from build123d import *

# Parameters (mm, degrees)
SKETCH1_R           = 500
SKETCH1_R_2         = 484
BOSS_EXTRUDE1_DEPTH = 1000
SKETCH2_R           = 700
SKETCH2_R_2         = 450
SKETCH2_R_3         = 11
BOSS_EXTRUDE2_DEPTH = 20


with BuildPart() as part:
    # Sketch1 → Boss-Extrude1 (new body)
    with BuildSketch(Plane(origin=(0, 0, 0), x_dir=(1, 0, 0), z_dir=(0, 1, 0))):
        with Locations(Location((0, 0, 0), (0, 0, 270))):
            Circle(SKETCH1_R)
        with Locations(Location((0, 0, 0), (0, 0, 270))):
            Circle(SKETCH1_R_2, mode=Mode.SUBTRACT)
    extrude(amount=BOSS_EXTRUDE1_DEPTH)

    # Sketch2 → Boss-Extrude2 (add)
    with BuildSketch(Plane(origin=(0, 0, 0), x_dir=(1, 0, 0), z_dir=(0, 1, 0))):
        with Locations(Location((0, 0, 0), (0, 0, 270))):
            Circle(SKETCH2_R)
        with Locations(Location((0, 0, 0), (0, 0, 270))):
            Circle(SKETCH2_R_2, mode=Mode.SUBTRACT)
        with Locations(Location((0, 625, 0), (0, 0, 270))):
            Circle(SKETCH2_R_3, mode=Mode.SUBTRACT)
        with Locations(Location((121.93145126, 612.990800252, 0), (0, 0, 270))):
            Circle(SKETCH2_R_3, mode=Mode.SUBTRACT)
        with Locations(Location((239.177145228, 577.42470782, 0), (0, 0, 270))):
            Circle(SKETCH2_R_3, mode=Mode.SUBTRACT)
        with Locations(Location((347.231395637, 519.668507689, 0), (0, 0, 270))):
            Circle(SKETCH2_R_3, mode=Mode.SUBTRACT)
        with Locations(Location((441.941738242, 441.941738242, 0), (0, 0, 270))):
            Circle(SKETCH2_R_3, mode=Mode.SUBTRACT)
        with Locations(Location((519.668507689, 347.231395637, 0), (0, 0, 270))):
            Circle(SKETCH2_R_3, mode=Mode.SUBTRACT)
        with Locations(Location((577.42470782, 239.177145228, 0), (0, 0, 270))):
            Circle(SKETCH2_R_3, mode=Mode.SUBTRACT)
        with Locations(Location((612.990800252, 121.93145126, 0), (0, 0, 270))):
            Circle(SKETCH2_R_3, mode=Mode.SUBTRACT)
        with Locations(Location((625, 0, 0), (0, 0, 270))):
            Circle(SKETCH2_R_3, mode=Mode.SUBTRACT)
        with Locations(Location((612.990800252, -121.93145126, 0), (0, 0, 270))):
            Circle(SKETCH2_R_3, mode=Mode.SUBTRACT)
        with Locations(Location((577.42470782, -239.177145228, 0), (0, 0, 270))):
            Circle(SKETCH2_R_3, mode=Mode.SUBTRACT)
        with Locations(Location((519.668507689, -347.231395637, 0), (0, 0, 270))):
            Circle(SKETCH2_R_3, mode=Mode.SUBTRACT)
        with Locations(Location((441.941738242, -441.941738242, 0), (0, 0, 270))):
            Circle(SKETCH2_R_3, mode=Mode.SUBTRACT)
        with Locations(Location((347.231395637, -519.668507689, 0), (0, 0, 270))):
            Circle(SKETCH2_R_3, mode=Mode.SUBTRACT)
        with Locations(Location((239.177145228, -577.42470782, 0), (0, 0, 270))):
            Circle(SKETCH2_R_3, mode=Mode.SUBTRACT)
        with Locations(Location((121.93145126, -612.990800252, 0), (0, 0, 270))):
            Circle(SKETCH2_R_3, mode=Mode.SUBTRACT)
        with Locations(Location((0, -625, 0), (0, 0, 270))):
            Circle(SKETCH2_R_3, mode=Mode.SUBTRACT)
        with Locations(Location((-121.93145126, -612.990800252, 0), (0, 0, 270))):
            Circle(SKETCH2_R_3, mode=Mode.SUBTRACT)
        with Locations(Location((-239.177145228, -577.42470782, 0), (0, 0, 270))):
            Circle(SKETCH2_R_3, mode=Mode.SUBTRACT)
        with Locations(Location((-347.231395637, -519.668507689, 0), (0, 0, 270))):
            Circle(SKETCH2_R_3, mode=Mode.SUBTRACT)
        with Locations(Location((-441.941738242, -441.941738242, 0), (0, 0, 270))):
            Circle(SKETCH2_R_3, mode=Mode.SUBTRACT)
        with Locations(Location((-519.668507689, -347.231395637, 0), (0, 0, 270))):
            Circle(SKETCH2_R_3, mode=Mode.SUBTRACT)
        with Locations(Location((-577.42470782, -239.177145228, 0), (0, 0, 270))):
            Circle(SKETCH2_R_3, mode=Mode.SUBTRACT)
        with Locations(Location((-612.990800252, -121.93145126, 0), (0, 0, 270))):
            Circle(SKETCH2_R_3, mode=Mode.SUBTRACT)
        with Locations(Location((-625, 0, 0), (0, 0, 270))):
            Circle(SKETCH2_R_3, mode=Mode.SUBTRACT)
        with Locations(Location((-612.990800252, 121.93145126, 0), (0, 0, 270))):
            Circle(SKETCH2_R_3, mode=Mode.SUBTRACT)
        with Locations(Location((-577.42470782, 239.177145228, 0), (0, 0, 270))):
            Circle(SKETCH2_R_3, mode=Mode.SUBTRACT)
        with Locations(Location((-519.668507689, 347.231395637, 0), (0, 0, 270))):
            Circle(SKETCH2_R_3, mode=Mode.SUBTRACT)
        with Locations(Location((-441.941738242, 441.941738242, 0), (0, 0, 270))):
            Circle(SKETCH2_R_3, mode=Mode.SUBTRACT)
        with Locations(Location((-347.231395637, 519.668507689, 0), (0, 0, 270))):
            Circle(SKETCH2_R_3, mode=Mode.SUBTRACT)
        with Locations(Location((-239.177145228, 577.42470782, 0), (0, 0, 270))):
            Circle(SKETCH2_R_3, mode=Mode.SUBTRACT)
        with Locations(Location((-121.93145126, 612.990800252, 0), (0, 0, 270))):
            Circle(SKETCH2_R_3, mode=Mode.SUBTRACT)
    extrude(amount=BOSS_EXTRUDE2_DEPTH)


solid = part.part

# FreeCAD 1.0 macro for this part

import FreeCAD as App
import Part
import Sketcher

doc = App.newDocument("Part")
body = doc.addObject("PartDesign::Body", "Body")

# Sketch on XZ plane
sketch1 = body.newObject("Sketcher::SketchObject", "Sketch")
sketch1.AttachmentSupport = (doc.getObject("XZ_Plane"), [""])
sketch1.MapMode = "FlatFace"
sketch1.addGeometry(Part.Circle(App.Vector(0, 0, 0), App.Vector(0, 0, 1), 500), False)
sketch1.addGeometry(Part.Circle(App.Vector(0, 0, 0), App.Vector(0, 0, 1), 484), False)
sketch1.addConstraint(Sketcher.Constraint("Coincident", 0, 3, -1, 1))
sketch1.addConstraint(Sketcher.Constraint("Coincident", 1, 3, -1, 1))
sketch1.addConstraint(Sketcher.Constraint("Diameter", 0, 1000.0))
sketch1.addConstraint(Sketcher.Constraint("Diameter", 1, 968.0))
pad1 = body.newObject("PartDesign::Pad", "Pad")
pad1.Profile = sketch1
pad1.Length = 1000
pad1.Reversed = True

# Sketch on XZ plane
sketch2 = body.newObject("Sketcher::SketchObject", "Sketch001")
sketch2.AttachmentSupport = (doc.getObject("XZ_Plane"), [""])
sketch2.MapMode = "FlatFace"
sketch2.addGeometry(Part.Circle(App.Vector(0, 0, 0), App.Vector(0, 0, 1), 700), False)
sketch2.addGeometry(Part.Circle(App.Vector(-519.668508, -347.231396, 0), App.Vector(0, 0, 1), 11), False)
sketch2.addGeometry(Part.Circle(App.Vector(-347.231396, -519.668508, 0), App.Vector(0, 0, 1), 11), False)
sketch2.addGeometry(Part.Circle(App.Vector(-441.941738, -441.941738, 0), App.Vector(0, 0, 1), 11), False)
sketch2.addGeometry(Part.Circle(App.Vector(-577.424708, -239.177145, 0), App.Vector(0, 0, 1), 11), False)
sketch2.addGeometry(Part.Circle(App.Vector(-612.9908, -121.931451, 0), App.Vector(0, 0, 1), 11), False)
sketch2.addGeometry(Part.Circle(App.Vector(-239.177145, -577.424708, 0), App.Vector(0, 0, 1), 11), False)
sketch2.addGeometry(Part.Circle(App.Vector(-121.931451, -612.9908, 0), App.Vector(0, 0, 1), 11), False)
sketch2.addGeometry(Part.Circle(App.Vector(0, -625, 0), App.Vector(0, 0, 1), 11), False)
sketch2.addGeometry(Part.Circle(App.Vector(-625, 0, 0), App.Vector(0, 0, 1), 11), False)
sketch2.addGeometry(Part.Circle(App.Vector(-612.9908, 121.931451, 0), App.Vector(0, 0, 1), 11), False)
sketch2.addGeometry(Part.Circle(App.Vector(-577.424708, 239.177145, 0), App.Vector(0, 0, 1), 11), False)
sketch2.addGeometry(Part.Circle(App.Vector(-519.668508, 347.231396, 0), App.Vector(0, 0, 1), 11), False)
sketch2.addGeometry(Part.Circle(App.Vector(-441.941738, 441.941738, 0), App.Vector(0, 0, 1), 11), False)
sketch2.addGeometry(Part.Circle(App.Vector(-347.231396, 519.668508, 0), App.Vector(0, 0, 1), 11), False)
sketch2.addGeometry(Part.Circle(App.Vector(-239.177145, 577.424708, 0), App.Vector(0, 0, 1), 11), False)
sketch2.addGeometry(Part.Circle(App.Vector(-121.931451, 612.9908, 0), App.Vector(0, 0, 1), 11), False)
sketch2.addGeometry(Part.Circle(App.Vector(121.931451, -612.9908, 0), App.Vector(0, 0, 1), 11), False)
sketch2.addGeometry(Part.Circle(App.Vector(239.177145, -577.424708, 0), App.Vector(0, 0, 1), 11), False)
sketch2.addGeometry(Part.Circle(App.Vector(347.231396, -519.668508, 0), App.Vector(0, 0, 1), 11), False)
sketch2.addGeometry(Part.Circle(App.Vector(441.941738, -441.941738, 0), App.Vector(0, 0, 1), 11), False)
sketch2.addGeometry(Part.Circle(App.Vector(519.668508, -347.231396, 0), App.Vector(0, 0, 1), 11), False)
sketch2.addGeometry(Part.Circle(App.Vector(577.424708, -239.177145, 0), App.Vector(0, 0, 1), 11), False)
sketch2.addGeometry(Part.Circle(App.Vector(612.9908, -121.931451, 0), App.Vector(0, 0, 1), 11), False)
sketch2.addGeometry(Part.Circle(App.Vector(625, 0, 0), App.Vector(0, 0, 1), 11), False)
sketch2.addGeometry(Part.Circle(App.Vector(0, 0, 0), App.Vector(0, 0, 1), 450), False)
sketch2.addGeometry(Part.Circle(App.Vector(0, 625, 0), App.Vector(0, 0, 1), 11), False)
sketch2.addGeometry(Part.Circle(App.Vector(121.931451, 612.9908, 0), App.Vector(0, 0, 1), 11), False)
sketch2.addGeometry(Part.Circle(App.Vector(239.177145, 577.424708, 0), App.Vector(0, 0, 1), 11), False)
sketch2.addGeometry(Part.Circle(App.Vector(612.9908, 121.931451, 0), App.Vector(0, 0, 1), 11), False)
sketch2.addGeometry(Part.Circle(App.Vector(577.424708, 239.177145, 0), App.Vector(0, 0, 1), 11), False)
sketch2.addGeometry(Part.Circle(App.Vector(441.941738, 441.941738, 0), App.Vector(0, 0, 1), 11), False)
sketch2.addGeometry(Part.Circle(App.Vector(347.231396, 519.668508, 0), App.Vector(0, 0, 1), 11), False)
sketch2.addGeometry(Part.Circle(App.Vector(519.668508, 347.231396, 0), App.Vector(0, 0, 1), 11), False)
sketch2.addConstraint(Sketcher.Constraint("Coincident", 0, 3, -1, 1))
sketch2.addConstraint(Sketcher.Constraint("Coincident", 25, 3, -1, 1))
sketch2.addConstraint(Sketcher.Constraint("Equal", 1, 2))
sketch2.addConstraint(Sketcher.Constraint("Equal", 2, 3))
sketch2.addConstraint(Sketcher.Constraint("Equal", 3, 4))
sketch2.addConstraint(Sketcher.Constraint("Equal", 4, 5))
sketch2.addConstraint(Sketcher.Constraint("Equal", 5, 6))
sketch2.addConstraint(Sketcher.Constraint("Equal", 6, 7))
sketch2.addConstraint(Sketcher.Constraint("Equal", 7, 8))
sketch2.addConstraint(Sketcher.Constraint("Equal", 8, 9))
sketch2.addConstraint(Sketcher.Constraint("Equal", 9, 10))
sketch2.addConstraint(Sketcher.Constraint("Equal", 10, 11))
sketch2.addConstraint(Sketcher.Constraint("Equal", 11, 12))
sketch2.addConstraint(Sketcher.Constraint("Equal", 12, 13))
sketch2.addConstraint(Sketcher.Constraint("Equal", 13, 14))
sketch2.addConstraint(Sketcher.Constraint("Equal", 14, 15))
sketch2.addConstraint(Sketcher.Constraint("Equal", 15, 16))
sketch2.addConstraint(Sketcher.Constraint("Equal", 16, 17))
sketch2.addConstraint(Sketcher.Constraint("Equal", 17, 18))
sketch2.addConstraint(Sketcher.Constraint("Equal", 18, 19))
sketch2.addConstraint(Sketcher.Constraint("Equal", 19, 20))
sketch2.addConstraint(Sketcher.Constraint("Equal", 20, 21))
sketch2.addConstraint(Sketcher.Constraint("Equal", 21, 22))
sketch2.addConstraint(Sketcher.Constraint("Equal", 22, 23))
sketch2.addConstraint(Sketcher.Constraint("Equal", 23, 24))
sketch2.addConstraint(Sketcher.Constraint("Equal", 24, 26))
sketch2.addConstraint(Sketcher.Constraint("Equal", 26, 27))
sketch2.addConstraint(Sketcher.Constraint("Equal", 27, 28))
sketch2.addConstraint(Sketcher.Constraint("Equal", 28, 29))
sketch2.addConstraint(Sketcher.Constraint("Equal", 29, 30))
sketch2.addConstraint(Sketcher.Constraint("Equal", 30, 31))
sketch2.addConstraint(Sketcher.Constraint("Equal", 31, 32))
sketch2.addConstraint(Sketcher.Constraint("Equal", 32, 33))
sketch2.addConstraint(Sketcher.Constraint("Symmetric", 16, 3, 17, 3, -1, 1))
sketch2.addConstraint(Sketcher.Constraint("Symmetric", 15, 3, 18, 3, -1, 1))
sketch2.addConstraint(Sketcher.Constraint("Symmetric", 14, 3, 19, 3, -1, 1))
sketch2.addConstraint(Sketcher.Constraint("Symmetric", 13, 3, 20, 3, -1, 1))
sketch2.addConstraint(Sketcher.Constraint("Symmetric", 12, 3, 21, 3, -1, 1))
sketch2.addConstraint(Sketcher.Constraint("Symmetric", 11, 3, 22, 3, -1, 1))
sketch2.addConstraint(Sketcher.Constraint("Symmetric", 10, 3, 23, 3, -1, 1))
sketch2.addConstraint(Sketcher.Constraint("Symmetric", 9, 3, 24, 3, -1, 1))
sketch2.addConstraint(Sketcher.Constraint("Symmetric", 8, 3, 26, 3, -1, 1))
sketch2.addConstraint(Sketcher.Constraint("Symmetric", 7, 3, 27, 3, -1, 1))
sketch2.addConstraint(Sketcher.Constraint("Symmetric", 6, 3, 28, 3, -1, 1))
sketch2.addConstraint(Sketcher.Constraint("Symmetric", 5, 3, 29, 3, -1, 1))
sketch2.addConstraint(Sketcher.Constraint("Symmetric", 4, 3, 30, 3, -1, 1))
sketch2.addConstraint(Sketcher.Constraint("Symmetric", 3, 3, 31, 3, -1, 1))
sketch2.addConstraint(Sketcher.Constraint("Symmetric", 2, 3, 32, 3, -1, 1))
sketch2.addConstraint(Sketcher.Constraint("Symmetric", 1, 3, 33, 3, -1, 1))
sketch2.addConstraint(Sketcher.Constraint("Symmetric", 7, 3, 17, 3, -2))
sketch2.addConstraint(Sketcher.Constraint("Symmetric", 6, 3, 18, 3, -2))
sketch2.addConstraint(Sketcher.Constraint("Symmetric", 2, 3, 19, 3, -2))
sketch2.addConstraint(Sketcher.Constraint("Symmetric", 3, 3, 20, 3, -2))
sketch2.addConstraint(Sketcher.Constraint("Symmetric", 1, 3, 21, 3, -2))
sketch2.addConstraint(Sketcher.Constraint("Symmetric", 4, 3, 22, 3, -2))
sketch2.addConstraint(Sketcher.Constraint("Symmetric", 5, 3, 23, 3, -2))
sketch2.addConstraint(Sketcher.Constraint("PointOnObject", 8, 3, -2))
sketch2.addConstraint(Sketcher.Constraint("PointOnObject", 9, 3, -1))
sketch2.addConstraint(Sketcher.Constraint("Diameter", 0, 1400.0))
sketch2.addConstraint(Sketcher.Constraint("Diameter", 1, 22.0))
sketch2.addConstraint(Sketcher.Constraint("Diameter", 25, 900.0))
sketch2.addConstraint(Sketcher.Constraint("DistanceY", 8, 3, -1, 1, 625.0))
sketch2.addConstraint(Sketcher.Constraint("DistanceX", 9, 3, -1, 1, 625.0))
sketch2.addConstraint(Sketcher.Constraint("DistanceX", 5, 3, -1, 1, 612.9908))
sketch2.addConstraint(Sketcher.Constraint("DistanceY", 7, 3, -1, 1, 612.9908))
sketch2.addConstraint(Sketcher.Constraint("DistanceX", 4, 3, 1, 3, 57.7562))
sketch2.addConstraint(Sketcher.Constraint("DistanceY", 6, 3, 2, 3, 57.7562))
sketch2.addConstraint(Sketcher.Constraint("DistanceX", 3, 3, -1, 1, 441.941738))
sketch2.addConstraint(Sketcher.Constraint("DistanceY", 3, 3, -1, 1, 441.941738))
sketch2.addConstraint(Sketcher.Constraint("DistanceY", 5, 3, -1, 1, 121.931451))
sketch2.addConstraint(Sketcher.Constraint("DistanceX", 7, 3, -1, 1, 121.931451))
sketch2.addConstraint(Sketcher.Constraint("DistanceX", 1, 3, 3, 3, 77.726769))
sketch2.addConstraint(Sketcher.Constraint("DistanceY", 2, 3, 3, 3, 77.726769))
sketch2.addConstraint(Sketcher.Constraint("DistanceY", 1, 3, 4, 3, 108.05425))
sketch2.addConstraint(Sketcher.Constraint("DistanceX", 2, 3, 6, 3, 108.05425))
sketch2.addConstraint(Sketcher.Constraint("DistanceY", 4, 3, 11, 3, 478.35429))
sketch2.addConstraint(Sketcher.Constraint("DistanceX", 6, 3, 18, 3, 478.35429))
pad2 = body.newObject("PartDesign::Pad", "Pad001")
pad2.Profile = sketch2
pad2.Length = 20
pad2.Reversed = True

doc.recompute()
